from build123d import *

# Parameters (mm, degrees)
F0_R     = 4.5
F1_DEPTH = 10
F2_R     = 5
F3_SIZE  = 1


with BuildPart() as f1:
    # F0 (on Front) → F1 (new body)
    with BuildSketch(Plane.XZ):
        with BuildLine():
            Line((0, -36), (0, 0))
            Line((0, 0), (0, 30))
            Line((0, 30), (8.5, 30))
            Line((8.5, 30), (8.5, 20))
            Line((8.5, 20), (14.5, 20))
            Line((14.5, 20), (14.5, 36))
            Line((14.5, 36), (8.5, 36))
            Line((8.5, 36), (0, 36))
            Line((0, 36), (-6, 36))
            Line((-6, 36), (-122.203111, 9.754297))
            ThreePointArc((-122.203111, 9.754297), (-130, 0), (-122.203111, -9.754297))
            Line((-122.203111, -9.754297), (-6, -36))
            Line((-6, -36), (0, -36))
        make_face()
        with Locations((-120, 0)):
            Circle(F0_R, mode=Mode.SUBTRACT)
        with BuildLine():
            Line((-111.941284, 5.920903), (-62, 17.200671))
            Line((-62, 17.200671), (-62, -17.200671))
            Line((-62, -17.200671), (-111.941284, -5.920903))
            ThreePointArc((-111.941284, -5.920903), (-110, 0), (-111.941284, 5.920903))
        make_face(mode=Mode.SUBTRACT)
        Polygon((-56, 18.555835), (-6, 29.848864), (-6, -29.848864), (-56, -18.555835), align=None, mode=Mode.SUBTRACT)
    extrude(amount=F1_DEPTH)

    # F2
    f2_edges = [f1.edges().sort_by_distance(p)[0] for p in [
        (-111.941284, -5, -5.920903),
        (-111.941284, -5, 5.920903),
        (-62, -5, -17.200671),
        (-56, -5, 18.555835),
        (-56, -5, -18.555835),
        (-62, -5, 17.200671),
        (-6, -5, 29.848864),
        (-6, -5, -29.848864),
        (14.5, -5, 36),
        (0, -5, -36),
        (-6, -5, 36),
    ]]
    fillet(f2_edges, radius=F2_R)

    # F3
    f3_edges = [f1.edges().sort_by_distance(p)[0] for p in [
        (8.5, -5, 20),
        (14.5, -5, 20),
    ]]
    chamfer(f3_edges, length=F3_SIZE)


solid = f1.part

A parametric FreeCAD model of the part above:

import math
import FreeCAD as App
import Part
import Sketcher

V = App.Vector
Q = App.Units.Quantity


def edges_at(feature, points):
    """Names of the edges that pass closest to the given points."""
    edges = feature.Shape.Edges
    near = lambda p: min(range(len(edges)), key=lambda i: edges[i].distToShape(Part.Vertex(*p))[0])
    return sorted({f"Edge{near(p) + 1}" for p in points})


def add_polygon(sketch, points):
    """Adds a closed chain of lines whose ends are joined by coincident constraints."""
    first, n = sketch.GeometryCount, len(points)
    for a, b in zip(points, points[1:] + points[:1]):
        sketch.addGeometry(Part.LineSegment(App.Vector(*a, 0), App.Vector(*b, 0)), False)
    for i in range(n):
        sketch.addConstraint(Sketcher.Constraint("Coincident", first + i, 2, first + (i + 1) % n, 1))

doc = App.newDocument("Part")
body = doc.addObject("PartDesign::Body", "Body")

# Sketch on XZ plane
sketch1 = body.newObject("Sketcher::SketchObject", "Sketch")
sketch1.AttachmentSupport = (doc.getObject("XZ_Plane"), [""])
sketch1.MapMode = "FlatFace"
sketch1.addGeometry(Part.LineSegment(V(0, -36, 0), V(0, 30, 0)), False)  # 0
sketch1.addGeometry(Part.LineSegment(V(0, 30, 0), V(8.5, 30, 0)), False)  # 1
sketch1.addGeometry(Part.LineSegment(V(8.5, 30, 0), V(8.5, 20, 0)), False)  # 2
sketch1.addGeometry(Part.LineSegment(V(8.5, 20, 0), V(14.5, 20, 0)), False)  # 3
sketch1.addGeometry(Part.LineSegment(V(14.5, 20, 0), V(14.5, 36, 0)), False)  # 4
sketch1.addGeometry(Part.LineSegment(V(14.5, 36, 0), V(-6, 36, 0)), False)  # 5
sketch1.addGeometry(Part.LineSegment(V(-6, 36, 0), V(-122.203111, 9.754297, 0)), False)  # 6
sketch1.addGeometry(Part.ArcOfCircle(Part.Circle(V(-119.999999, 0, 0), V(0, 0, 1), 10.000001), math.radians(102.727308), math.radians(257.272692)), False)  # 7
sketch1.addGeometry(Part.LineSegment(V(-122.203111, -9.754297, 0), V(-6, -36, 0)), False)  # 8
sketch1.addGeometry(Part.LineSegment(V(-6, -36, 0), V(0, -36, 0)), False)  # 9
sketch1.addGeometry(Part.Circle(V(-120, 0, 0), V(0, 0, 1), 4.5), False)  # 10
sketch1.addGeometry(Part.ArcOfCircle(Part.Circle(V(-119.999999, 0, 0), V(0, 0, 1), 9.999999), math.radians(-36.305487), math.radians(36.305487)), False)  # 11
sketch1.addGeometry(Part.LineSegment(V(-111.941284, 5.920903, 0), V(-62, 17.200671, 0)), False)  # 12
sketch1.addGeometry(Part.LineSegment(V(-62, 17.200671, 0), V(-62, -17.200671, 0)), False)  # 13
sketch1.addGeometry(Part.LineSegment(V(-62, -17.200671, 0), V(-111.941284, -5.920903, 0)), False)  # 14
add_polygon(sketch1, [(-56, -18.555835), (-56, 18.555835), (-6, 29.848864), (-6, -29.848864)])  # lines 15-18
sketch1.addConstraint(Sketcher.Constraint("Coincident", 0, 2, 1, 1))
sketch1.addConstraint(Sketcher.Constraint("Coincident", 1, 2, 2, 1))
sketch1.addConstraint(Sketcher.Constraint("Coincident", 2, 2, 3, 1))
sketch1.addConstraint(Sketcher.Constraint("Coincident", 3, 2, 4, 1))
sketch1.addConstraint(Sketcher.Constraint("Coincident", 4, 2, 5, 1))
sketch1.addConstraint(Sketcher.Constraint("Coincident", 5, 2, 6, 1))
sketch1.addConstraint(Sketcher.Constraint("Tangent", 6, 2, 7, 1))
sketch1.addConstraint(Sketcher.Constraint("Tangent", 7, 2, 8, 1))
sketch1.addConstraint(Sketcher.Constraint("Coincident", 8, 2, 9, 1))
sketch1.addConstraint(Sketcher.Constraint("Coincident", 9, 2, 0, 1))
sketch1.addConstraint(Sketcher.Constraint("Coincident", 11, 2, 12, 1))
sketch1.addConstraint(Sketcher.Constraint("Coincident", 12, 2, 13, 1))
sketch1.addConstraint(Sketcher.Constraint("Coincident", 13, 2, 14, 1))
sketch1.addConstraint(Sketcher.Constraint("Coincident", 14, 2, 11, 1))
sketch1.addConstraint(Sketcher.Constraint("Vertical", 0))
sketch1.addConstraint(Sketcher.Constraint("Horizontal", 1))
sketch1.addConstraint(Sketcher.Constraint("Vertical", 2))
sketch1.addConstraint(Sketcher.Constraint("Horizontal", 3))
sketch1.addConstraint(Sketcher.Constraint("Vertical", 4))
sketch1.addConstraint(Sketcher.Constraint("Horizontal", 5))
sketch1.addConstraint(Sketcher.Constraint("Horizontal", 9))
sketch1.addConstraint(Sketcher.Constraint("Vertical", 13))
sketch1.addConstraint(Sketcher.Constraint("Vertical", 15))
sketch1.addConstraint(Sketcher.Constraint("Vertical", 17))
sketch1.addConstraint(Sketcher.Constraint("Coincident", 10, 3, 7, 3))
sketch1.addConstraint(Sketcher.Constraint("Coincident", 11, 3, 7, 3))
sketch1.addConstraint(Sketcher.Constraint("Equal", 7, 11))
sketch1.addConstraint(Sketcher.Constraint("Symmetric", 6, 2, 7, 2, -1))
sketch1.addConstraint(Sketcher.Constraint("PointOnObject", 0, 2, -2))
sketch1.addConstraint(Sketcher.Constraint("Parallel", 6, 12))
sketch1.addConstraint(Sketcher.Constraint("Parallel", 8, 14))
sketch1.addConstraint(Sketcher.Constraint("Parallel", 12, 16))
sketch1.addConstraint(Sketcher.Constraint("Parallel", 14, 18))
sketch1.addConstraint(Sketcher.Constraint("Vertical", 5, 2, 8, 2))
sketch1.addConstraint(Sketcher.Constraint("Vertical", 11, 2, 14, 2))
sketch1.addConstraint(Sketcher.Constraint("Vertical", 8, 2, 16, 2))
sketch1.addConstraint(Sketcher.Constraint("Equal", 3, 9))
sketch1.addConstraint(Sketcher.Constraint("Diameter", 10, Q("9 mm")))
sketch1.addConstraint(Sketcher.Constraint("Radius", 7, Q("10.000001 mm")))
sketch1.addConstraint(Sketcher.Constraint("DistanceX", 3, 1, 3, 2, Q("6 mm")))
sketch1.addConstraint(Sketcher.Constraint("DistanceY", 0, 1, 0, 2, Q("66 mm")))
sketch1.addConstraint(Sketcher.Constraint("DistanceY", 2, 2, 2, 1, Q("10 mm")))
sketch1.addConstraint(Sketcher.Constraint("DistanceY", 4, 1, 4, 2, Q("16 mm")))
sketch1.addConstraint(Sketcher.Constraint("DistanceX", 1, 1, 1, 2, Q("8.5 mm")))
sketch1.addConstraint(Sketcher.Constraint("DistanceX", 7, 3, -1, 1, Q("119.999999 mm")))
sketch1.addConstraint(Sketcher.Constraint("DistanceX", 12, 2, -1, 1, Q("62 mm")))
sketch1.addConstraint(Sketcher.Constraint("DistanceX", 15, 2, -1, 1, Q("56 mm")))
sketch1.addConstraint(Sketcher.Constraint("DistanceY", 15, 1, 15, 2, Q("37.11167 mm")))
sketch1.addConstraint(Sketcher.Constraint("DistanceY", 7, 2, 11, 2, Q("15.6752 mm")))
sketch1.addConstraint(Sketcher.Constraint("DistanceY", -1, 1, 15, 2, Q("18.555835 mm")))
pad1 = body.newObject("PartDesign::Pad", "Pad")
pad1.Profile = sketch1
pad1.Length = 10
doc.recompute()

fillet = body.newObject("PartDesign::Fillet", "Fillet")
fillet.Base = (pad1, edges_at(pad1, [
    (-111.941, -5, -5.921),
    (-111.941, -5, 5.921),
    (-62, -5, -17.201),
    (-56, -5, 18.556),
    (-56, -5, -18.556),
    (-62, -5, 17.201),
    (-6, -5, 29.849),
    (-6, -5, -29.849),
    (14.5, -5, 36),
    (0, -5, -36),
    (-6, -5, 36),
]))
fillet.Radius = 5
doc.recompute()

chamfer = body.newObject("PartDesign::Chamfer", "Chamfer")
chamfer.Base = (fillet, edges_at(fillet, [(8.5, -5, 20), (14.5, -5, 20)]))
chamfer.Size = 1

doc.recompute()
